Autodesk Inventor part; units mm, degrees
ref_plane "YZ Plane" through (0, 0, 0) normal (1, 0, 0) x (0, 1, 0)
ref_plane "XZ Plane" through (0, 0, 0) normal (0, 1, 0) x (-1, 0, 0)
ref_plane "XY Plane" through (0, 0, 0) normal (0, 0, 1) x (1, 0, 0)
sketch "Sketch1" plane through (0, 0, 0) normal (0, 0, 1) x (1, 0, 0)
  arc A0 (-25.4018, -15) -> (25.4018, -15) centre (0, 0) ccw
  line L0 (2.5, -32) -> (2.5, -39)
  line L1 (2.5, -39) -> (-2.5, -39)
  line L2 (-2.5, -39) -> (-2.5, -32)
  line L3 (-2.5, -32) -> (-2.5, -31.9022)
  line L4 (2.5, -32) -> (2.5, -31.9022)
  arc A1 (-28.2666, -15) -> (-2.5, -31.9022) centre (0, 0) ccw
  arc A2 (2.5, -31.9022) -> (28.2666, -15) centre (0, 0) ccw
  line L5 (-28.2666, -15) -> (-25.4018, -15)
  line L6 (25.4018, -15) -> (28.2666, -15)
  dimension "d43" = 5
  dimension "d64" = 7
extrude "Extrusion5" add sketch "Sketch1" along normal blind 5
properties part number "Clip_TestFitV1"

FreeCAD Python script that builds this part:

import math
import FreeCAD as App
import Part
import Sketcher
from FreeCAD import Vector
Q = App.Units.Quantity

doc = App.newDocument("Part")
body = doc.addObject("PartDesign::Body", "Body")

sketch1 = body.newObject("Sketcher::SketchObject", "Sketch")
sketch1.AttachmentSupport = (doc.getObject("XY_Plane"), [""])
sketch1.MapMode = "FlatFace"
sketch1.addGeometry([
    Part.ArcOfCircle(Part.Circle(Vector(0, 0, 0), Vector(0, 0, 1), 29.5), math.radians(-149), math.radians(-31)),
    Part.LineSegment(Vector(-25.4, -15, 0), Vector(-28.3, -15, 0)),
    Part.ArcOfCircle(Part.Circle(Vector(0, 0, 0), Vector(0, 0, 1), 32), math.radians(-152), math.radians(-94)),
    Part.LineSegment(Vector(-2.5, -31.9, 0), Vector(-2.5, -39, 0)),
    Part.LineSegment(Vector(-2.5, -39, 0), Vector(2.5, -39, 0)),
    Part.LineSegment(Vector(2.5, -39, 0), Vector(2.5, -31.9, 0)),
    Part.ArcOfCircle(Part.Circle(Vector(0, 0, 0), Vector(0, 0, 1), 32), math.radians(-86), math.radians(-28)),
    Part.LineSegment(Vector(28.3, -15, 0), Vector(25.4, -15, 0)),
], False)
sketch1.addConstraint([
    Sketcher.Constraint("Coincident", 0, 1, 1, 1),
    Sketcher.Constraint("Coincident", 1, 2, 2, 1),
    Sketcher.Constraint("Coincident", 2, 2, 3, 1),
    Sketcher.Constraint("Coincident", 3, 2, 4, 1),
    Sketcher.Constraint("Coincident", 4, 2, 5, 1),
    Sketcher.Constraint("Coincident", 5, 2, 6, 1),
    Sketcher.Constraint("Coincident", 6, 2, 7, 1),
    Sketcher.Constraint("Coincident", 7, 2, 0, 2),
    Sketcher.Constraint("Horizontal", 1),
    Sketcher.Constraint("Vertical", 3),
    Sketcher.Constraint("Horizontal", 4),
    Sketcher.Constraint("Vertical", 5),
    Sketcher.Constraint("Horizontal", 7),
    Sketcher.Constraint("Coincident", 0, 3, -1, 1),
    Sketcher.Constraint("Coincident", 2, 3, -1, 1),
    Sketcher.Constraint("Coincident", 6, 3, -1, 1),
    Sketcher.Constraint("Equal", 2, 6),
    Sketcher.Constraint("Horizontal", 2, 2, 5, 2),
    Sketcher.Constraint("Horizontal", 1, 2, 6, 2),
    Sketcher.Constraint("DistanceX", 4, 1, 4, 2, Q("5 mm")),
    Sketcher.Constraint("Radius", 2, Q("32 mm")),
    Sketcher.Constraint("Radius", 0, Q("29.5 mm")),
    Sketcher.Constraint("DistanceY", 0, 1, -1, 1, Q("15 mm")),
    Sketcher.Constraint("DistanceY", 3, 2, -1, 1, Q("39 mm")),
])
pad1 = body.newObject("PartDesign::Pad", "Pad")
pad1.Profile = sketch1
pad1.Length = 5

doc.recompute()
